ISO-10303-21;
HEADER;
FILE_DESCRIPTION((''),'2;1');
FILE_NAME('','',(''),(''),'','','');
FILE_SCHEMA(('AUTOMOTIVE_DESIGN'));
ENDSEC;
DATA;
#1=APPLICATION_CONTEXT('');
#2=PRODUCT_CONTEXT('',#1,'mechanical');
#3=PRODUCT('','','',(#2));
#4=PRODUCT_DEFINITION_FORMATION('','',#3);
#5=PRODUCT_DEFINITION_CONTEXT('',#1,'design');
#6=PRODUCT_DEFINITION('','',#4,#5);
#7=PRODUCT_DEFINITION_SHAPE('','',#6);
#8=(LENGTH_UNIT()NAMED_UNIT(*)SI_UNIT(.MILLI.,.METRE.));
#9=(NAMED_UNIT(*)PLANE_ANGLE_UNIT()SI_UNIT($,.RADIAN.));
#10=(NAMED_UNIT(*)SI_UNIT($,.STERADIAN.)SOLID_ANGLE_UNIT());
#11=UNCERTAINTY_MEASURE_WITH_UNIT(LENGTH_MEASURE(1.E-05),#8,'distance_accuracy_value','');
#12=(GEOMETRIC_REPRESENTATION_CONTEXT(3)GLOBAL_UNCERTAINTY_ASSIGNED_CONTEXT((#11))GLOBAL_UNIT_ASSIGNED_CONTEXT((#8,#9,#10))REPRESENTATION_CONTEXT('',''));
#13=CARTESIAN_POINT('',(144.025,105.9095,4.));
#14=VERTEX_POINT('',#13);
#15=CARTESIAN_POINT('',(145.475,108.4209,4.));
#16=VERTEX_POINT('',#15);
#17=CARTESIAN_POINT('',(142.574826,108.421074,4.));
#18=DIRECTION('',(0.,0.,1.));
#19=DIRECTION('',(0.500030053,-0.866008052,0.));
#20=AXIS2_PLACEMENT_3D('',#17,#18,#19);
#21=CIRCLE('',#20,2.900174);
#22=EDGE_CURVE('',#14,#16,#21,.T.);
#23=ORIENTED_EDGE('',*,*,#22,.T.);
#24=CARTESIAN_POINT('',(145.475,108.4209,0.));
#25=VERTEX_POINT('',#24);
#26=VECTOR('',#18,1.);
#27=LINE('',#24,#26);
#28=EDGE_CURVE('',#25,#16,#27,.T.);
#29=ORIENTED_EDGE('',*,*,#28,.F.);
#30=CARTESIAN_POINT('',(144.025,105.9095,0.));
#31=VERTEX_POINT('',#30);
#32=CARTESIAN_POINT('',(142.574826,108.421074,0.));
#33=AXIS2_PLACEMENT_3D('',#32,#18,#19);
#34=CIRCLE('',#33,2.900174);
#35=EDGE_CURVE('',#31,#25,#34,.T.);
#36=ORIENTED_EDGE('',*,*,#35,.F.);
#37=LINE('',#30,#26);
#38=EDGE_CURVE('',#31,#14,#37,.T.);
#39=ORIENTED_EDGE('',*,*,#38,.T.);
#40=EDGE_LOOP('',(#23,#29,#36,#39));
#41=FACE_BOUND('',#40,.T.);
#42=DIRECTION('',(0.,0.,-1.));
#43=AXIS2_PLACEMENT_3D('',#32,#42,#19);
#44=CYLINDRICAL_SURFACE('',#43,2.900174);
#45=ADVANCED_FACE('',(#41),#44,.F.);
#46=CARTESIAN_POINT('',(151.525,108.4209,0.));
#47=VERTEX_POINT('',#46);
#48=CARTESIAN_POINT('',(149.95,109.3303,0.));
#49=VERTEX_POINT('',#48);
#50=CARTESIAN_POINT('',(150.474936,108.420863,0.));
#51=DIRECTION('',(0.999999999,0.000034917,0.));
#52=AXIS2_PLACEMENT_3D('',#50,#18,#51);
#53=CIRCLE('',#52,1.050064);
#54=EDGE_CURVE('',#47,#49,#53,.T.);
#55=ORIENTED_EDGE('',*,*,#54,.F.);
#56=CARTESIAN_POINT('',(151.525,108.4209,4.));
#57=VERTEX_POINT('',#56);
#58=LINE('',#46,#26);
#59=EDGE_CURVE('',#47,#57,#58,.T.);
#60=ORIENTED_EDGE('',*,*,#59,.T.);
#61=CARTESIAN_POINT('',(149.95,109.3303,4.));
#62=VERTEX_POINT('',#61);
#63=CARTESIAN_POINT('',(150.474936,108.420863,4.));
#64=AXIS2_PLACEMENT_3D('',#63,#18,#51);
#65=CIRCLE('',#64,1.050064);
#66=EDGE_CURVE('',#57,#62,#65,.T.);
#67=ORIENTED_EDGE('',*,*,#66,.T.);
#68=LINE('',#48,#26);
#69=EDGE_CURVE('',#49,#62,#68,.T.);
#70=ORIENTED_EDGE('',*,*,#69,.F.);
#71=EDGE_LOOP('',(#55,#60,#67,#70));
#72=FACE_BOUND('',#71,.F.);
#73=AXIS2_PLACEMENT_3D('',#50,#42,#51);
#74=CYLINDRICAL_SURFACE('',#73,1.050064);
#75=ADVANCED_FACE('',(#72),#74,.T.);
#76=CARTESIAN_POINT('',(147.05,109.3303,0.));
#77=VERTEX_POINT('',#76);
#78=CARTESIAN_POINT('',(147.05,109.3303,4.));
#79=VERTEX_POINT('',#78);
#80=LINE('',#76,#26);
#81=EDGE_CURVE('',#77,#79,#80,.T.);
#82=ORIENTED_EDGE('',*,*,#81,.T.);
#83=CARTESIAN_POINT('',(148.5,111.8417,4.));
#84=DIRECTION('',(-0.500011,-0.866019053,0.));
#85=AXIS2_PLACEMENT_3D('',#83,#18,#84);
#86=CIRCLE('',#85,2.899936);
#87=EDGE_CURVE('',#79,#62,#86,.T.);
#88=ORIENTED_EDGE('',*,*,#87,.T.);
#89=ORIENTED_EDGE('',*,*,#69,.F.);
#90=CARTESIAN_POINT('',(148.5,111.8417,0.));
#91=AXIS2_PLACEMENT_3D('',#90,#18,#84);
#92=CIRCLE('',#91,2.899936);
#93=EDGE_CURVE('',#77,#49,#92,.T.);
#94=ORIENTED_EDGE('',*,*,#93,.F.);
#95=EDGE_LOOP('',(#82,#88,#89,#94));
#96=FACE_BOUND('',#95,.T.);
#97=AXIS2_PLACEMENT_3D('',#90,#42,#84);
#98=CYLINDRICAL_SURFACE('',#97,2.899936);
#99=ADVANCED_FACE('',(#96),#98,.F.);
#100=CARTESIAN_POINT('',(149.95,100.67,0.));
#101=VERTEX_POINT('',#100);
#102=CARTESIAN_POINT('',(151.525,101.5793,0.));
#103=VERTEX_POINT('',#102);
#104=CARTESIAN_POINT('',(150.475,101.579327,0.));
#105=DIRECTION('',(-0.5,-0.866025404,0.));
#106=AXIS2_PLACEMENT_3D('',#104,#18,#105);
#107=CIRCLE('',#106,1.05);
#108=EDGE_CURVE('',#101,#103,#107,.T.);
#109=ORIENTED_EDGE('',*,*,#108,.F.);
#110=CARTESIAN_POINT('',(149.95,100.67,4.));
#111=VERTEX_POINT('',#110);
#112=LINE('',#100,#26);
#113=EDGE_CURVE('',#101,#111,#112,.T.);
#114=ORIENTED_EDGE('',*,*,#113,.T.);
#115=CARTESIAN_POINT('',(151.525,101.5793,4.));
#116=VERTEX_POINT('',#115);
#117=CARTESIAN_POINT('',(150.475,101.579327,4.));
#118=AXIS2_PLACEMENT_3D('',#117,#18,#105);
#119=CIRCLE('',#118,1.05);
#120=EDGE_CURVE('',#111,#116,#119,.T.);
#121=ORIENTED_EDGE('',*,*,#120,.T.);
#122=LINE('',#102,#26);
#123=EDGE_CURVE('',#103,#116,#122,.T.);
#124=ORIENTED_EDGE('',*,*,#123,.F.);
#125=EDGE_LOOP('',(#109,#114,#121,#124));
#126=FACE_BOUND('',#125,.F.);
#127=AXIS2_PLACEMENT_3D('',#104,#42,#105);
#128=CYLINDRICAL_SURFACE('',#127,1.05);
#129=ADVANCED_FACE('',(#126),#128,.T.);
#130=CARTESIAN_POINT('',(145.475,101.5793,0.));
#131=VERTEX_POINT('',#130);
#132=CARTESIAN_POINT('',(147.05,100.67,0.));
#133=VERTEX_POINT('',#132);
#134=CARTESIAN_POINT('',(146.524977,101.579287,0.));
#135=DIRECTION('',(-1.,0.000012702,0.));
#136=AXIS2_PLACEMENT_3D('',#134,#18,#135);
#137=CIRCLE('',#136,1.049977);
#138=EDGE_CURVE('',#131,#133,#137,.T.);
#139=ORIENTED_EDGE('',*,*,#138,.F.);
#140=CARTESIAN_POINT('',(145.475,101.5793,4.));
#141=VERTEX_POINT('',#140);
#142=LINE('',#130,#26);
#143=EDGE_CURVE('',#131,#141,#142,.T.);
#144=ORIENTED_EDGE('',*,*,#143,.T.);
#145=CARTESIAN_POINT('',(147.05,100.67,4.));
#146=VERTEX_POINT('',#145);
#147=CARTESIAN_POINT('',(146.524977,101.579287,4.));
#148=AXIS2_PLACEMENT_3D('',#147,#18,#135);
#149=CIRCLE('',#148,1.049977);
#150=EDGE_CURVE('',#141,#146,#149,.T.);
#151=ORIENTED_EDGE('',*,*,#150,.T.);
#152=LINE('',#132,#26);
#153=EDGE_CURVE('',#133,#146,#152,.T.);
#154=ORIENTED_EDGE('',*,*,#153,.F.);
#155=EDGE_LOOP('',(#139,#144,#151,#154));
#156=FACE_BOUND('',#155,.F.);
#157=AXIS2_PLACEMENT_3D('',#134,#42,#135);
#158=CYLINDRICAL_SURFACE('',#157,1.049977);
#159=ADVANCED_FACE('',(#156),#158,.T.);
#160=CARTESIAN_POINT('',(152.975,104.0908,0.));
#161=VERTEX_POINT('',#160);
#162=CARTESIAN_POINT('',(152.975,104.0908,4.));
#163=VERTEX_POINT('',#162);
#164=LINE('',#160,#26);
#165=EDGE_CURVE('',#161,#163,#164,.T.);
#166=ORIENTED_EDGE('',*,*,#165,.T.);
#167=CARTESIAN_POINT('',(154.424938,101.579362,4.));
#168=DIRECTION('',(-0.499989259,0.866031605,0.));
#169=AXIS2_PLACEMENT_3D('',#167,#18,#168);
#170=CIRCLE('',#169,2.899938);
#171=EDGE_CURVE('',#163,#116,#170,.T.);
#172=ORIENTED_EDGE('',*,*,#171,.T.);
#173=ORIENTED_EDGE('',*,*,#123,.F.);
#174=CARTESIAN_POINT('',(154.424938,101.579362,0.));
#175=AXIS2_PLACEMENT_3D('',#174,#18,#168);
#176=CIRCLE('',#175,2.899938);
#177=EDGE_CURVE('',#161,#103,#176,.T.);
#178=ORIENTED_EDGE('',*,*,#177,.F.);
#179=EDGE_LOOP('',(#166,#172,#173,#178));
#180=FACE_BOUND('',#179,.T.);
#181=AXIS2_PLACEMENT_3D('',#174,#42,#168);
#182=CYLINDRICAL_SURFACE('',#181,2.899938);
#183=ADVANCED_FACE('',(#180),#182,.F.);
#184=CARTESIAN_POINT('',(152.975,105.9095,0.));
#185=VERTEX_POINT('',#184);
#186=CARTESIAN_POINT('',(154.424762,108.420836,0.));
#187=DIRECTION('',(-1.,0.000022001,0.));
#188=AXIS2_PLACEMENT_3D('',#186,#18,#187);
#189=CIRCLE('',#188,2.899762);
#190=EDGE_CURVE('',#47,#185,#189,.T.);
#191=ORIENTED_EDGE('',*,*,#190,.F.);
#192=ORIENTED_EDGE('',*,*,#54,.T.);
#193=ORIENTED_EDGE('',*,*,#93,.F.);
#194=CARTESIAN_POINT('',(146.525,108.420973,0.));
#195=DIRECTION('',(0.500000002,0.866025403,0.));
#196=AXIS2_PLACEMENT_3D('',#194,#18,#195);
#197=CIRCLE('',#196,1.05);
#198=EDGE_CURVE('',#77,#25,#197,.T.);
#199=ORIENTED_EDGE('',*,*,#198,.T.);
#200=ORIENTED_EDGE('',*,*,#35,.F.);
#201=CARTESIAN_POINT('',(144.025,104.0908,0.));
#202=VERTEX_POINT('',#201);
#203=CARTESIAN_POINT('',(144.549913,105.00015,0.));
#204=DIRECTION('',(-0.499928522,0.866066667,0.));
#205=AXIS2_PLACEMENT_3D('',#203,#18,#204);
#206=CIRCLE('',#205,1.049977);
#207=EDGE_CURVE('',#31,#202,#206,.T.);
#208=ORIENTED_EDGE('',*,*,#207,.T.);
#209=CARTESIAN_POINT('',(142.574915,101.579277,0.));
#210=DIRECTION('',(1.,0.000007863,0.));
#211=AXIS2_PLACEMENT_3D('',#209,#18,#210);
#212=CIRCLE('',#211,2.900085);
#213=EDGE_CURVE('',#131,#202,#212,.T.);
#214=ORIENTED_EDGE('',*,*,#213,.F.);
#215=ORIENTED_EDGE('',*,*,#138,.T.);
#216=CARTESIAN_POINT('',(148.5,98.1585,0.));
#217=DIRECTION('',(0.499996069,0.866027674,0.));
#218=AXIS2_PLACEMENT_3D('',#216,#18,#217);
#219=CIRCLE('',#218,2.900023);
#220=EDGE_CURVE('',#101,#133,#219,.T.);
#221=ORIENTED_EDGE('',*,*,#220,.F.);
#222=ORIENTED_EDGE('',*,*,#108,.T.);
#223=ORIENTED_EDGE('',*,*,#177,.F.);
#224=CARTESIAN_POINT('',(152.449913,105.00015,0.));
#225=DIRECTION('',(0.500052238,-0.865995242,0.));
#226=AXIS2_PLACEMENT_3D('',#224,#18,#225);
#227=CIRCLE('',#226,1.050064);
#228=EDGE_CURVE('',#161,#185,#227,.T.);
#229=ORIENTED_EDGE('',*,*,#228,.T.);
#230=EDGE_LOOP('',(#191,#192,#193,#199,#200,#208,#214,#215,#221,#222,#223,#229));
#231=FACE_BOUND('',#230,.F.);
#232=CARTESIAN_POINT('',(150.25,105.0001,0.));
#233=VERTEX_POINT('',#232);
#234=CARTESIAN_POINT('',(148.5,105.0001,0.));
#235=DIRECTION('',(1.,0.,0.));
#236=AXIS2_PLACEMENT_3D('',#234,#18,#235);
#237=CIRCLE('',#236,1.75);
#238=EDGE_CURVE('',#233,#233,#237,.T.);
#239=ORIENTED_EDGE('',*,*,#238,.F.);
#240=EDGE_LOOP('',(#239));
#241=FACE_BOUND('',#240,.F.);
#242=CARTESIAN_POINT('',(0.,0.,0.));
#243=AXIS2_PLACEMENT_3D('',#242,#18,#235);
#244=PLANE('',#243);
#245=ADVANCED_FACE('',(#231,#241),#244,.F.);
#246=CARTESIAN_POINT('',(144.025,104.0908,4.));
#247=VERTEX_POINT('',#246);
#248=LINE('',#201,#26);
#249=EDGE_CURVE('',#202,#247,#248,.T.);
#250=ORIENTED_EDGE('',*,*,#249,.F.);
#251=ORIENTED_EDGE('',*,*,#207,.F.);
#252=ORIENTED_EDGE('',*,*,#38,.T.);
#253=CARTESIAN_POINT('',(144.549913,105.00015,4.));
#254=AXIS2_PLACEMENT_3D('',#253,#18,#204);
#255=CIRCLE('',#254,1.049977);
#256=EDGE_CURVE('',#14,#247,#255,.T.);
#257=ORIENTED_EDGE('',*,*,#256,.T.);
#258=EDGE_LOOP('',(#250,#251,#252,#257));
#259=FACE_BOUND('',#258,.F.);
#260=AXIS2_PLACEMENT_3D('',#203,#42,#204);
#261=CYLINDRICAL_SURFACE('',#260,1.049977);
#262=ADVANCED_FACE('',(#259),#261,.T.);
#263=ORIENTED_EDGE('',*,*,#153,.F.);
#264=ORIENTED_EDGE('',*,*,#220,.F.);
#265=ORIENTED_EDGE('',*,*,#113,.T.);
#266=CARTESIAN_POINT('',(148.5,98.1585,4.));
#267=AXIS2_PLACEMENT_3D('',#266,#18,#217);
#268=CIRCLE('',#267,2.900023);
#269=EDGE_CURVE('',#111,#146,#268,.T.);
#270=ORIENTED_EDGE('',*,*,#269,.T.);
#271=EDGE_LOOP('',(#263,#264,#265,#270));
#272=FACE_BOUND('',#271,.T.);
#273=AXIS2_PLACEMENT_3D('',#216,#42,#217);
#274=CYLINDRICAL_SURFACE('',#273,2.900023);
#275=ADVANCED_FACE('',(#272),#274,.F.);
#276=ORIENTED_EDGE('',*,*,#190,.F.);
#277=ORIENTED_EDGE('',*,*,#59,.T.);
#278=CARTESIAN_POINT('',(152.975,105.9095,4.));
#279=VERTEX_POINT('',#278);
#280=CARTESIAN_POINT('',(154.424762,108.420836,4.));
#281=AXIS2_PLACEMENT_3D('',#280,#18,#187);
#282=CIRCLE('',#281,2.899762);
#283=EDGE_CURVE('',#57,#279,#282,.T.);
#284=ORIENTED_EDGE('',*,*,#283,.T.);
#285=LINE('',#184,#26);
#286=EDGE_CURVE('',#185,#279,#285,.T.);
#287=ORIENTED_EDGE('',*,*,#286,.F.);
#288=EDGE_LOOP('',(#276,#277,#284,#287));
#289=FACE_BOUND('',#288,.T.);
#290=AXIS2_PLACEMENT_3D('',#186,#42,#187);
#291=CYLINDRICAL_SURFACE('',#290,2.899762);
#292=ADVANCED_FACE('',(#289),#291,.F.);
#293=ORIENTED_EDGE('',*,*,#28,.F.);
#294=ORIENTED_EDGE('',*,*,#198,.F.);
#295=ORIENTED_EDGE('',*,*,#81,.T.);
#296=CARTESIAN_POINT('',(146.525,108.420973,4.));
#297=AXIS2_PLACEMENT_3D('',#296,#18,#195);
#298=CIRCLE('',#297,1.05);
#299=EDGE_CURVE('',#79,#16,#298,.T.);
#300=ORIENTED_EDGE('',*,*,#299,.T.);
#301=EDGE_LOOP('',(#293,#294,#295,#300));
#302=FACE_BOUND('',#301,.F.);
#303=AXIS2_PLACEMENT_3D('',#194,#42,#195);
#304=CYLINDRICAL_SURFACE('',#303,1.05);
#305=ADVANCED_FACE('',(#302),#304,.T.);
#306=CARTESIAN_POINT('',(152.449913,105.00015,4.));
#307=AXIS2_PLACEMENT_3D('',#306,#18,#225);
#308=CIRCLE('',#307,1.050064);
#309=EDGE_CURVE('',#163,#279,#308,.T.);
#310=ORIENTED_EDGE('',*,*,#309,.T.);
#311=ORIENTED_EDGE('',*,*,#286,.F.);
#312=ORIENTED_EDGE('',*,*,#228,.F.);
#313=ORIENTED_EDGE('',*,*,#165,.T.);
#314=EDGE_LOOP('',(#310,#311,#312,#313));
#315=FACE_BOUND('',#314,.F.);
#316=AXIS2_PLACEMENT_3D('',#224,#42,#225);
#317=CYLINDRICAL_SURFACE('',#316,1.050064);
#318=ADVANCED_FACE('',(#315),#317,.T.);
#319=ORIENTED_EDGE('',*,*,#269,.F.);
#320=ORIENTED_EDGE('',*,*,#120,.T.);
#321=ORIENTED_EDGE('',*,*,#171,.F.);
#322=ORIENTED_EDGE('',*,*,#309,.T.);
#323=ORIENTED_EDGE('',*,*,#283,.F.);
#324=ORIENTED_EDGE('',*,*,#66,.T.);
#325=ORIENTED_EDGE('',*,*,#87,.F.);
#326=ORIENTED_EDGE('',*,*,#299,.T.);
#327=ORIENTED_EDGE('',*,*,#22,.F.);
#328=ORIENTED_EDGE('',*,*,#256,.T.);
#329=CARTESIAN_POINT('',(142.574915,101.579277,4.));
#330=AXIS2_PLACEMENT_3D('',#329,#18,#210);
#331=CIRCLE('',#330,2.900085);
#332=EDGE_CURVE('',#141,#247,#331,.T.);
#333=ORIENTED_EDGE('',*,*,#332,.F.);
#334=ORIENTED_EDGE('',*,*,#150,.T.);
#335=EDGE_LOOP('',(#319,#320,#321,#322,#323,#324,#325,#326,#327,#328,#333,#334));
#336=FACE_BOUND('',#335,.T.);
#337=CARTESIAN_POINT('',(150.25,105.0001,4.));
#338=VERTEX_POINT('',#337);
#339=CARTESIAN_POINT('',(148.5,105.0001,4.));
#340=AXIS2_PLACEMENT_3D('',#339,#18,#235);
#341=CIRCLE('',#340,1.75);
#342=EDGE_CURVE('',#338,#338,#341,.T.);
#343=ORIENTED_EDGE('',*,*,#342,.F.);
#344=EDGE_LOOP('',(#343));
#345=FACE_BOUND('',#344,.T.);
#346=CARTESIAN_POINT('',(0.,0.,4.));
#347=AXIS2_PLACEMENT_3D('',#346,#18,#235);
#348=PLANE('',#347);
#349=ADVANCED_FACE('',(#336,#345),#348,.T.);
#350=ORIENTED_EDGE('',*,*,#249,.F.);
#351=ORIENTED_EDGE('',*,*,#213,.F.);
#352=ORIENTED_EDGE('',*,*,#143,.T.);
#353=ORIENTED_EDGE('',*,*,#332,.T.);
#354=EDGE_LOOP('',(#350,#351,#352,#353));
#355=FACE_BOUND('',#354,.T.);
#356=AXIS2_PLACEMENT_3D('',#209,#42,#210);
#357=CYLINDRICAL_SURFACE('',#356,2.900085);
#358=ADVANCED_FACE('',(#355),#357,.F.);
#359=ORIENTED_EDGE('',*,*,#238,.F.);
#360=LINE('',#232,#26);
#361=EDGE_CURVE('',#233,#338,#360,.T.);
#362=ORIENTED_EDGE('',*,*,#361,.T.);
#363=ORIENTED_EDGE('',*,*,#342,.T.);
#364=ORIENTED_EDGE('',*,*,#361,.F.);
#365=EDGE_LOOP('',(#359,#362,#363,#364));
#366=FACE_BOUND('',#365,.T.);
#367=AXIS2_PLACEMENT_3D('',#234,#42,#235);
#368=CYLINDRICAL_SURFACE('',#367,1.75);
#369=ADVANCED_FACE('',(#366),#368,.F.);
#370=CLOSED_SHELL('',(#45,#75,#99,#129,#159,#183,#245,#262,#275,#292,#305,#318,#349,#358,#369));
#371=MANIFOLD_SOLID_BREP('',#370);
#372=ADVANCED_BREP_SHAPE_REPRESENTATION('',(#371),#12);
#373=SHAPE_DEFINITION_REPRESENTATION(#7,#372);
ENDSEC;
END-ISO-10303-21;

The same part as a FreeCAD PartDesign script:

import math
import FreeCAD as App
import Part
import Sketcher
Q = App.Units.Quantity

doc = App.newDocument("Part")
body = doc.addObject("PartDesign::Body", "Body")

# Sketch on XY plane
sketch1 = body.newObject("Sketcher::SketchObject", "Sketch")
sketch1.AttachmentSupport = (doc.getObject("XY_Plane"), [""])
sketch1.MapMode = "FlatFace"
sketch1.addGeometry([
    Part.ArcOfCircle(Part.Circle(App.Vector(142.6, 108.4, 0), App.Vector(0, 0, 1), 2.9), math.radians(-60), math.radians(0)),  # 0
    Part.ArcOfCircle(Part.Circle(App.Vector(144.6, 105, 0), App.Vector(0, 0, 1), 1.1), math.radians(120), math.radians(240)),  # 1
    Part.ArcOfCircle(Part.Circle(App.Vector(142.6, 101.6, 0), App.Vector(0, 0, 1), 2.9), math.radians(0), math.radians(60)),  # 2
    Part.ArcOfCircle(Part.Circle(App.Vector(146.5, 101.6, 0), App.Vector(0, 0, 1), 1.1), math.radians(180), math.radians(300)),  # 3
    Part.ArcOfCircle(Part.Circle(App.Vector(148.5, 98.2, 0), App.Vector(0, 0, 1), 2.9), math.radians(60), math.radians(120)),  # 4
    Part.ArcOfCircle(Part.Circle(App.Vector(150.5, 101.6, 0), App.Vector(0, 0, 1), 1), math.radians(-120), math.radians(0)),  # 5
    Part.ArcOfCircle(Part.Circle(App.Vector(154.4, 101.6, 0), App.Vector(0, 0, 1), 2.9), math.radians(120), math.radians(180)),  # 6
    Part.ArcOfCircle(Part.Circle(App.Vector(152.4, 105, 0), App.Vector(0, 0, 1), 1), math.radians(-60), math.radians(60)),  # 7
    Part.ArcOfCircle(Part.Circle(App.Vector(154.4, 108.4, 0), App.Vector(0, 0, 1), 2.9), math.radians(180), math.radians(240)),  # 8
    Part.ArcOfCircle(Part.Circle(App.Vector(150.5, 108.4, 0), App.Vector(0, 0, 1), 1.1), math.radians(0), math.radians(120)),  # 9
    Part.ArcOfCircle(Part.Circle(App.Vector(148.5, 111.8, 0), App.Vector(0, 0, 1), 2.9), math.radians(-120), math.radians(-60)),  # 10
    Part.ArcOfCircle(Part.Circle(App.Vector(146.5, 108.4, 0), App.Vector(0, 0, 1), 1.1), math.radians(60), math.radians(180)),  # 11
    Part.Circle(App.Vector(148.5, 105, 0), App.Vector(0, 0, 1), 1.8),  # 12
], False)
sketch1.addConstraint([
    Sketcher.Constraint("Tangent", 0, 1, 1, 1),
    Sketcher.Constraint("Tangent", 1, 2, 2, 2),
    Sketcher.Constraint("Tangent", 2, 1, 3, 1),
    Sketcher.Constraint("Tangent", 3, 2, 4, 2),
    Sketcher.Constraint("Tangent", 4, 1, 5, 1),
    Sketcher.Constraint("Tangent", 5, 2, 6, 2),
    Sketcher.Constraint("Tangent", 6, 1, 7, 1),
    Sketcher.Constraint("Tangent", 7, 2, 8, 2),
    Sketcher.Constraint("Tangent", 8, 1, 9, 1),
    Sketcher.Constraint("Tangent", 9, 2, 10, 2),
    Sketcher.Constraint("Tangent", 10, 1, 11, 1),
    Sketcher.Constraint("Tangent", 11, 2, 0, 2),
    Sketcher.Constraint("Equal", 0, 2),
    Sketcher.Constraint("Equal", 1, 3),
    Sketcher.Constraint("Equal", 2, 4),
    Sketcher.Constraint("Equal", 3, 5),
    Sketcher.Constraint("Equal", 4, 6),
    Sketcher.Constraint("Equal", 5, 7),
    Sketcher.Constraint("Equal", 6, 8),
    Sketcher.Constraint("Equal", 7, 9),
    Sketcher.Constraint("Equal", 8, 10),
    Sketcher.Constraint("Equal", 9, 11),
    Sketcher.Constraint("Horizontal", 2, 3, 3, 3),
    Sketcher.Constraint("Horizontal", 3, 3, 5, 3),
    Sketcher.Constraint("Horizontal", 5, 3, 6, 3),
    Sketcher.Constraint("Horizontal", 1, 3, 7, 3),
    Sketcher.Constraint("Horizontal", 0, 3, 8, 3),
    Sketcher.Constraint("Horizontal", 8, 3, 9, 3),
    Sketcher.Constraint("Horizontal", 9, 3, 11, 3),
    Sketcher.Constraint("Horizontal", 7, 3, 12, 3),
    Sketcher.Constraint("Vertical", 0, 3, 2, 3),
    Sketcher.Constraint("Vertical", 10, 3, 12, 3),
    Sketcher.Constraint("Diameter", 12, Q("3.5 mm")),
    Sketcher.Constraint("Radius", 1, Q("1.05 mm")),
    Sketcher.Constraint("Radius", 0, Q("2.9 mm")),
    Sketcher.Constraint("DistanceY", -1, 1, 1, 3, Q("105 mm")),
    Sketcher.Constraint("DistanceX", -1, 1, 4, 3, Q("148.5 mm")),
    Sketcher.Constraint("DistanceX", 2, 3, 5, 3, Q("7.9 mm")),
    Sketcher.Constraint("DistanceX", 1, 3, 7, 3, Q("7.9 mm")),
])
pad1 = body.newObject("PartDesign::Pad", "Pad")
pad1.Profile = sketch1
pad1.Length = 4

doc.recompute()
